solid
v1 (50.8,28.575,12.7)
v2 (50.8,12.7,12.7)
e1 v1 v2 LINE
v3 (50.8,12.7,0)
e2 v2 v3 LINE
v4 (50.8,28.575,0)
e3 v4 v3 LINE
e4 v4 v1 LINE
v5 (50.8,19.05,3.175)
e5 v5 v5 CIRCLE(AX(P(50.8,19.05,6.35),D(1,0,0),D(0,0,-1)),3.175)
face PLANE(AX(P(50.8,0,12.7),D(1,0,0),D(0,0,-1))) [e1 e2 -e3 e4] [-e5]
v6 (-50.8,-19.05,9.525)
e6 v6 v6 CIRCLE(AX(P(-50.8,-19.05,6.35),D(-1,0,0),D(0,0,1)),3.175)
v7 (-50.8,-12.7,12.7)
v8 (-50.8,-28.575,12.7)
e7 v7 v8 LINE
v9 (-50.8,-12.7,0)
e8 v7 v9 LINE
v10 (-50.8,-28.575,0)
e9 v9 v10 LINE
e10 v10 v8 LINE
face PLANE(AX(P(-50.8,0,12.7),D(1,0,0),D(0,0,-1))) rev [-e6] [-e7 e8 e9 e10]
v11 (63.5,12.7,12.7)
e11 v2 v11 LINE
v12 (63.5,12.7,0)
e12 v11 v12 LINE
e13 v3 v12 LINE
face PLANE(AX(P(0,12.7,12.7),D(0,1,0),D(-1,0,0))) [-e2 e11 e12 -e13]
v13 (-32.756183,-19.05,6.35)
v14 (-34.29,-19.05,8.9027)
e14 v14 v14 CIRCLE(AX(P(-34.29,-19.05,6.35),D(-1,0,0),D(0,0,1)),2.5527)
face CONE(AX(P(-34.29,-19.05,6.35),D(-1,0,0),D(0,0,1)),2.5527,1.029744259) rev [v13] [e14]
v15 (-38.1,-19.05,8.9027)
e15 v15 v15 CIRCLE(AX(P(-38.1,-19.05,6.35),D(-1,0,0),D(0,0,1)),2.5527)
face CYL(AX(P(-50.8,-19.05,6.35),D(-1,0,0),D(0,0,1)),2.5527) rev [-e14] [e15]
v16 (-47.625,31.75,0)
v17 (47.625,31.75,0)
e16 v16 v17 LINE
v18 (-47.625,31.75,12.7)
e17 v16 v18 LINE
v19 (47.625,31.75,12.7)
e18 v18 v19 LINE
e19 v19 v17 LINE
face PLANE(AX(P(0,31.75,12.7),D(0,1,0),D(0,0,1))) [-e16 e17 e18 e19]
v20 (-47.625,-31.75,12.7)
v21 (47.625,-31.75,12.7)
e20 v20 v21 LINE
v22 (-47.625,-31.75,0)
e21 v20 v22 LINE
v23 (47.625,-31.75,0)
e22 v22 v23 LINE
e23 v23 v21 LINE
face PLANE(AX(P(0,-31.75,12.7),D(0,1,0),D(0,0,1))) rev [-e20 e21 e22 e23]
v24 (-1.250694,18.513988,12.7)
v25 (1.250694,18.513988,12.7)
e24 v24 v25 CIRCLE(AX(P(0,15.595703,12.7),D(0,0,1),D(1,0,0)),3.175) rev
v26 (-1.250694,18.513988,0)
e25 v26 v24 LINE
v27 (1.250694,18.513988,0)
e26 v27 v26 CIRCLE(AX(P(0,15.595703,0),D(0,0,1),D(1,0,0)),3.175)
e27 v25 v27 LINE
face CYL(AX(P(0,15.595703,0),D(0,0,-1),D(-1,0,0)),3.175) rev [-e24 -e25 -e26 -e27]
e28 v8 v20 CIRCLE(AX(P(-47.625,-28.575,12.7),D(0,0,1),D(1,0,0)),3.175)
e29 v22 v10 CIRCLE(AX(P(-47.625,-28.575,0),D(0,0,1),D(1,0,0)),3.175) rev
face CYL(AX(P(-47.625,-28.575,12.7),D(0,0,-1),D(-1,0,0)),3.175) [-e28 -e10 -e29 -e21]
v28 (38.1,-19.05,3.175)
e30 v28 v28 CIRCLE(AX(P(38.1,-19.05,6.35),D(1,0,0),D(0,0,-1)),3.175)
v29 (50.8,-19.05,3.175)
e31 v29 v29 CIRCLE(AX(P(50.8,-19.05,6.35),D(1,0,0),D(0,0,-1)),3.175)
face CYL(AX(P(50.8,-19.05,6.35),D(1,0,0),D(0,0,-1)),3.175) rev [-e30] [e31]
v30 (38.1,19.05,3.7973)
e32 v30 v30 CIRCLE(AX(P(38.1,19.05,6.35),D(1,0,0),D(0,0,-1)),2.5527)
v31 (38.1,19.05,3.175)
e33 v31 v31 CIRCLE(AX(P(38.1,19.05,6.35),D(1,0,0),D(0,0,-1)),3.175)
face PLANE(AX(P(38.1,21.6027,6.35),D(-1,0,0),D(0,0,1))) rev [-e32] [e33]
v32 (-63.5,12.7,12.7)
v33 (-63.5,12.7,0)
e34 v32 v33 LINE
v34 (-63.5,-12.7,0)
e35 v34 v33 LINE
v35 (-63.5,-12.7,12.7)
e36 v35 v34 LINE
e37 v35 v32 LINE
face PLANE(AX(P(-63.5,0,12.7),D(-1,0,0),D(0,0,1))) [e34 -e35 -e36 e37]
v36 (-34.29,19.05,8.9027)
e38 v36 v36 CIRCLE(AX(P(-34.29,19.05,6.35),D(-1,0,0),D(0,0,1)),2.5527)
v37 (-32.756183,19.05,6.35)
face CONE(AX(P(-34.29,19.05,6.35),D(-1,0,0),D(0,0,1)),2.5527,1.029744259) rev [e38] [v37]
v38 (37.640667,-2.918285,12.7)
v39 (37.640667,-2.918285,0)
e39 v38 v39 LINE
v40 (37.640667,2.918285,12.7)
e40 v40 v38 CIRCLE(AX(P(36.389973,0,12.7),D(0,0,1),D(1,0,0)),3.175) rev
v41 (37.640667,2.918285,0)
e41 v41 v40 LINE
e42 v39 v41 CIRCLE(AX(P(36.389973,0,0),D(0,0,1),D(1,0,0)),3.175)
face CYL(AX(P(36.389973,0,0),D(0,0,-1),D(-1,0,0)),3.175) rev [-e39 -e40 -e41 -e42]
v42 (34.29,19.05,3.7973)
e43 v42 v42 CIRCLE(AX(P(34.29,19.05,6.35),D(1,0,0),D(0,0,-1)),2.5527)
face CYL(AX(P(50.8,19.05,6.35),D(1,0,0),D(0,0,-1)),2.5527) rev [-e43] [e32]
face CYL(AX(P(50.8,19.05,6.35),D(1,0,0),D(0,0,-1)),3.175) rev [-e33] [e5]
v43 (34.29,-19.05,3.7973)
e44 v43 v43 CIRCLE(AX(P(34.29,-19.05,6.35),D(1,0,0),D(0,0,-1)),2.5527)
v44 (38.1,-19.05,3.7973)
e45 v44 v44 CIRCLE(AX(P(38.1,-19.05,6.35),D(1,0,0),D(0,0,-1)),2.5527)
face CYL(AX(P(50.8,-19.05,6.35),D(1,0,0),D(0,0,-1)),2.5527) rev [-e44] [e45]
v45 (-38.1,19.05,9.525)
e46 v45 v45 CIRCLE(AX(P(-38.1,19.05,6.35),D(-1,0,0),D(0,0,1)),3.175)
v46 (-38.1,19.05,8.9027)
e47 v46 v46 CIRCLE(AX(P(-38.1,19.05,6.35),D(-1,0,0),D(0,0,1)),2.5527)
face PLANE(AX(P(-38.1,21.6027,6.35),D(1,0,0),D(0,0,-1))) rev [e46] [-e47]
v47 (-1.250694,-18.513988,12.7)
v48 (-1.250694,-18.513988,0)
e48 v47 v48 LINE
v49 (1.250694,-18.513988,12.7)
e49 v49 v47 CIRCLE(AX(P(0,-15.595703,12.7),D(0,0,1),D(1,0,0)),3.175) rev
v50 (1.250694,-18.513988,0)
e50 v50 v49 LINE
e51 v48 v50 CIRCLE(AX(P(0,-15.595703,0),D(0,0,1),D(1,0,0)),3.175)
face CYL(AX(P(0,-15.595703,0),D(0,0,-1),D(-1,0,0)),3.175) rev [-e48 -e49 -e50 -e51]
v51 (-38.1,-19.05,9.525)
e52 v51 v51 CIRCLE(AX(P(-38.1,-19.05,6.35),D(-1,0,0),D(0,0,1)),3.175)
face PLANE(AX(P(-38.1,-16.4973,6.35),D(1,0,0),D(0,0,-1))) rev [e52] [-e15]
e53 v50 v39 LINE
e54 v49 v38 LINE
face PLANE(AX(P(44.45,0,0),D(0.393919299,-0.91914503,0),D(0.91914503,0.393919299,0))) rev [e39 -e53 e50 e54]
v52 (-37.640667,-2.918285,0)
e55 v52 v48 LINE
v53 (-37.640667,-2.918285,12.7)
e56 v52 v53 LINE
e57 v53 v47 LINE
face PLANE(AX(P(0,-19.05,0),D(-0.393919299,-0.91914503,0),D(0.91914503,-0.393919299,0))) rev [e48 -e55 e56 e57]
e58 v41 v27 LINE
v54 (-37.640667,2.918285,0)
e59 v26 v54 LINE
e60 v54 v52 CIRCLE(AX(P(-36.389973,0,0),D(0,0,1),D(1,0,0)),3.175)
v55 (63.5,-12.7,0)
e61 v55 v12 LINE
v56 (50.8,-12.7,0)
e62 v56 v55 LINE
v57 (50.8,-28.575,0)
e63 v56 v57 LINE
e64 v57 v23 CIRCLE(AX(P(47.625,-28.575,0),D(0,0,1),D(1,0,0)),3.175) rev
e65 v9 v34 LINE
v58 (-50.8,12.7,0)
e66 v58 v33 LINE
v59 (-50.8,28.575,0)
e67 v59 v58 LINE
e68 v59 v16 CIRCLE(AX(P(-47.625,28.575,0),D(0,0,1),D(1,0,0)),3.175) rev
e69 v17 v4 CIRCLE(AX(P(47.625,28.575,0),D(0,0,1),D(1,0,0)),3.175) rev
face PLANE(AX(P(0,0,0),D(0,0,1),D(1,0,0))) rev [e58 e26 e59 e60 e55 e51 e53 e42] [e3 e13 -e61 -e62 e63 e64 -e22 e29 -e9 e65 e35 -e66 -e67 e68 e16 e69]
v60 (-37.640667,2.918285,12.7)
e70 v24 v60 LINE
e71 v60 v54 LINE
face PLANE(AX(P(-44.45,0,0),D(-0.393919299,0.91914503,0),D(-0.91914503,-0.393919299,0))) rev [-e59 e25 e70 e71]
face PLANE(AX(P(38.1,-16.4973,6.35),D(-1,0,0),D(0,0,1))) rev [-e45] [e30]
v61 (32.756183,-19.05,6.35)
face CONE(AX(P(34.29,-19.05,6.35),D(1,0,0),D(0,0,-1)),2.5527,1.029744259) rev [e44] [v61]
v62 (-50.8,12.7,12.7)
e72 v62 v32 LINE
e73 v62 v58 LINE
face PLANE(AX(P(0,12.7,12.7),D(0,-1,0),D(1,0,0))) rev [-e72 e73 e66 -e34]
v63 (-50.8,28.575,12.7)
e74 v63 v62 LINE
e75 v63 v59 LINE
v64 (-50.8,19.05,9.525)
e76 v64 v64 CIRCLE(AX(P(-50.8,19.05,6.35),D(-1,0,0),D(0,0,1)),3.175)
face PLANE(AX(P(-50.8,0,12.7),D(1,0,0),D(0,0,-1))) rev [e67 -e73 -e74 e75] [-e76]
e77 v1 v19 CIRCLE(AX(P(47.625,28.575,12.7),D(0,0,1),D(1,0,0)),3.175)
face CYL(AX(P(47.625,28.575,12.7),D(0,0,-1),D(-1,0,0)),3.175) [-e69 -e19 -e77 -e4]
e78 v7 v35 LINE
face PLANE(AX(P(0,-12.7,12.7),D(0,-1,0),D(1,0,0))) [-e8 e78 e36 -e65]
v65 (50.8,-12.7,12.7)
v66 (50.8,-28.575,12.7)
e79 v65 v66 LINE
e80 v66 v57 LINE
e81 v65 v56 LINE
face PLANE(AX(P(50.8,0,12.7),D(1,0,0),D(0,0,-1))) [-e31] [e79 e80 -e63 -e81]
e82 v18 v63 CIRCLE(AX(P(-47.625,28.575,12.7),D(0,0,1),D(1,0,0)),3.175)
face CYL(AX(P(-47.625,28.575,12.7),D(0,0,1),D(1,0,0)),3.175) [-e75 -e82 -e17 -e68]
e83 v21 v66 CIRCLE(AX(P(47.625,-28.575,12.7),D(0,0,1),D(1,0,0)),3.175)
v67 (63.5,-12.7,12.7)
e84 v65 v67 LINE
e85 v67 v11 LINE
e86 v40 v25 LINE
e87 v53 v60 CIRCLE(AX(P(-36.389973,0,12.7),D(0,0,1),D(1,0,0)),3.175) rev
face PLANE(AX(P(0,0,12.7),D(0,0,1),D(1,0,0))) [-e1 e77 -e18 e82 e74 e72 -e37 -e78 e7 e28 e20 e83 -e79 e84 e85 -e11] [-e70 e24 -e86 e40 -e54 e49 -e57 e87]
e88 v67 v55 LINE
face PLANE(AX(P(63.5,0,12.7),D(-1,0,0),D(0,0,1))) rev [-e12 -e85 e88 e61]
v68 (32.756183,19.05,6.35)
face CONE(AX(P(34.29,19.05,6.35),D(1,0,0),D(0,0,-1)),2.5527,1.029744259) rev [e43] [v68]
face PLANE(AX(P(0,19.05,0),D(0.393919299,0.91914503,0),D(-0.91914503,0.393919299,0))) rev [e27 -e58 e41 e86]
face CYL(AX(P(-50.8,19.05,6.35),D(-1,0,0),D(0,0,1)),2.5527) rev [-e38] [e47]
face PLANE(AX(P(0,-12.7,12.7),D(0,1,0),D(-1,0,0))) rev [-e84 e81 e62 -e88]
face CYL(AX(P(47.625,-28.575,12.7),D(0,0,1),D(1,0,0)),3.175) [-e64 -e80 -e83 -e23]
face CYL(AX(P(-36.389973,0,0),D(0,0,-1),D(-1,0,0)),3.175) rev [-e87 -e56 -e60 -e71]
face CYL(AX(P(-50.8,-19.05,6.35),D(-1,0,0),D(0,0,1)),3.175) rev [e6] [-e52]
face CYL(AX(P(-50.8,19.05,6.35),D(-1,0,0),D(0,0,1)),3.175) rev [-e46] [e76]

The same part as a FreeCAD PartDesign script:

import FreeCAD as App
import Part
import Sketcher
Q = App.Units.Quantity


def edges_at(feature, points):
    """Names of the edges that pass closest to the given points."""
    edges = feature.Shape.Edges
    near = lambda p: min(range(len(edges)), key=lambda i: edges[i].distToShape(Part.Vertex(*p))[0])
    return sorted({f"Edge{near(p) + 1}" for p in points})


def add_polygon(sketch, points):
    """Adds a closed chain of lines whose ends are joined by coincident constraints."""
    first, n = sketch.GeometryCount, len(points)
    for a, b in zip(points, points[1:] + points[:1]):
        sketch.addGeometry(Part.LineSegment(App.Vector(*a, 0), App.Vector(*b, 0)), False)
    for i in range(n):
        sketch.addConstraint(Sketcher.Constraint("Coincident", first + i, 2, first + (i + 1) % n, 1))

doc = App.newDocument("Part")
body = doc.addObject("PartDesign::Body", "Body")

# Sketch on XY plane
sketch1 = body.newObject("Sketcher::SketchObject", "Sketch")
sketch1.AttachmentSupport = (doc.getObject("XY_Plane"), [""])
sketch1.MapMode = "FlatFace"
add_polygon(sketch1, [(-64, 13), (-64, -13), (-51, -13), (-51, -32), (51, -32), (51, -13), (64, -13), (64, 13), (51, 13), (51, 32), (-51, 32), (-51, 13)])  # lines 0-11
sketch1.addConstraint(Sketcher.Constraint("Vertical", 0))
sketch1.addConstraint(Sketcher.Constraint("Horizontal", 1))
sketch1.addConstraint(Sketcher.Constraint("Vertical", 2))
sketch1.addConstraint(Sketcher.Constraint("Horizontal", 3))
sketch1.addConstraint(Sketcher.Constraint("Vertical", 4))
sketch1.addConstraint(Sketcher.Constraint("Horizontal", 5))
sketch1.addConstraint(Sketcher.Constraint("Vertical", 6))
sketch1.addConstraint(Sketcher.Constraint("Horizontal", 7))
sketch1.addConstraint(Sketcher.Constraint("Vertical", 8))
sketch1.addConstraint(Sketcher.Constraint("Horizontal", 9))
sketch1.addConstraint(Sketcher.Constraint("Vertical", 10))
sketch1.addConstraint(Sketcher.Constraint("Horizontal", 11))
sketch1.addConstraint(Sketcher.Constraint("Symmetric", 0, 2, 6, 2, -1, 1))
sketch1.addConstraint(Sketcher.Constraint("Symmetric", 2, 2, 8, 2, -1, 1))
sketch1.addConstraint(Sketcher.Constraint("Symmetric", 4, 2, 10, 2, -1, 1))
sketch1.addConstraint(Sketcher.Constraint("Symmetric", 1, 2, 4, 2, -2))
sketch1.addConstraint(Sketcher.Constraint("DistanceX", 3, 1, 3, 2, Q("4 in")))
sketch1.addConstraint(Sketcher.Constraint("DistanceY", 0, 2, 0, 1, Q("1 in")))
sketch1.addConstraint(Sketcher.Constraint("DistanceX", 1, 1, 1, 2, Q("0.5 in")))
sketch1.addConstraint(Sketcher.Constraint("DistanceY", 2, 2, 2, 1, Q("0.75 in")))
pad1 = body.newObject("PartDesign::Pad", "Pad")
pad1.Profile = sketch1
pad1.Length = Q("0.5 in")

# Sketch on XZ plane
sketch2 = body.newObject("Sketcher::SketchObject", "Sketch001")
sketch2.AttachmentSupport = (doc.getObject("XZ_Plane"), [""])
sketch2.MapMode = "FlatFace"
sketch2.AttachmentOffset = App.Placement(App.Vector(0, 0, -0.75 * 25.4), App.Rotation())
add_polygon(sketch2, [(32.8, 6.3), (50.8, 6.3), (50.8, 3.2), (38.1, 3.2), (38.1, 3.8), (34.3, 3.8)])  # lines 0-5
sketch2.addGeometry(Part.LineSegment(App.Vector(50.8, 6.3, 0), App.Vector(32.8, 6.3, 0)), True)  # axis
sketch2.addConstraint(Sketcher.Constraint("Horizontal", 0))
sketch2.addConstraint(Sketcher.Constraint("Vertical", 1))
sketch2.addConstraint(Sketcher.Constraint("Horizontal", 2))
sketch2.addConstraint(Sketcher.Constraint("Vertical", 3))
sketch2.addConstraint(Sketcher.Constraint("Horizontal", 4))
sketch2.addConstraint(Sketcher.Constraint("Horizontal", 6))
sketch2.addConstraint(Sketcher.Constraint("Coincident", 6, 1, 0, 2))
sketch2.addConstraint(Sketcher.Constraint("Equal", 0, 6))
sketch2.addConstraint(Sketcher.Constraint("DistanceX", 2, 2, 2, 1, Q("0.5 in")))
sketch2.addConstraint(Sketcher.Constraint("DistanceX", -1, 1, 0, 2, Q("2 in")))
sketch2.addConstraint(Sketcher.Constraint("Angle", 5, Q("121 deg")))
sketch2.addConstraint(Sketcher.Constraint("DistanceX", 4, 2, 4, 1, Q("0.15 in")))
sketch2.addConstraint(Sketcher.Constraint("DistanceY", 1, 2, 1, 1, Q("0.125 in")))
sketch2.addConstraint(Sketcher.Constraint("DistanceY", -1, 1, 0, 2, Q("0.25 in")))
sketch2.addConstraint(Sketcher.Constraint("DistanceY", 3, 1, 3, 2, Q("0.0245 in")))
groove = body.newObject("PartDesign::Groove", "Groove")
groove.Profile = sketch2
groove.ReferenceAxis = (sketch2, ["Axis0"])
groove.Angle = 360
doc.recompute()

linearpattern = body.newObject("PartDesign::LinearPattern", "LinearPattern")
linearpattern.Originals = [groove]
linearpattern.Direction = (doc.getObject("Y_Axis"), [""])
linearpattern.Mode = "offset"
linearpattern.Offset = Q("1.5 in")
linearpattern.Occurrences = 2
linearpattern.Reversed = True
body.Tip = linearpattern
doc.recompute()

mirrored = body.newObject("PartDesign::Mirrored", "Mirrored")
mirrored.Originals = [groove]
mirrored.MirrorPlane = (doc.getObject("YZ_Plane"), [""])
body.Tip = mirrored

# Sketch on XZ plane
sketch3 = body.newObject("Sketcher::SketchObject", "Sketch002")
sketch3.AttachmentSupport = (doc.getObject("XZ_Plane"), [""])
sketch3.MapMode = "FlatFace"
sketch3.AttachmentOffset = App.Placement(App.Vector(0, 0, 0.75 * 25.4), App.Rotation())
add_polygon(sketch3, [(-50.8, 6.3), (-32.8, 6.3), (-34.3, 3.8), (-38.1, 3.8), (-38.1, 3.2), (-50.8, 3.2)])  # lines 0-5
sketch3.addGeometry(Part.LineSegment(App.Vector(-32.8, 6.3, 0), App.Vector(-50.8, 6.3, 0)), True)  # axis
sketch3.addConstraint(Sketcher.Constraint("Horizontal", 0))
sketch3.addConstraint(Sketcher.Constraint("Horizontal", 2))
sketch3.addConstraint(Sketcher.Constraint("Vertical", 3))
sketch3.addConstraint(Sketcher.Constraint("Horizontal", 4))
sketch3.addConstraint(Sketcher.Constraint("Vertical", 5))
sketch3.addConstraint(Sketcher.Constraint("Horizontal", 6))
sketch3.addConstraint(Sketcher.Constraint("Coincident", 6, 1, 0, 2))
sketch3.addConstraint(Sketcher.Constraint("Vertical", 4, 2, 6, 2))
sketch3.addConstraint(Sketcher.Constraint("DistanceX", 4, 2, 4, 1, Q("0.5 in")))
sketch3.addConstraint(Sketcher.Constraint("DistanceX", 4, 2, -1, 1, Q("2 in")))
sketch3.addConstraint(Sketcher.Constraint("Angle", 1, Q("-121 deg")))
sketch3.addConstraint(Sketcher.Constraint("DistanceX", 2, 2, 2, 1, Q("0.15 in")))
sketch3.addConstraint(Sketcher.Constraint("DistanceY", 5, 1, 5, 2, Q("0.125 in")))
sketch3.addConstraint(Sketcher.Constraint("DistanceY", -1, 1, 0, 2, Q("0.25 in")))
sketch3.addConstraint(Sketcher.Constraint("DistanceY", 3, 2, 3, 1, Q("0.0245 in")))
groove2 = body.newObject("PartDesign::Groove", "Groove001")
groove2.Profile = sketch3
groove2.ReferenceAxis = (sketch3, ["Axis0"])
groove2.Angle = 360

# Sketch on XY plane
sketch4 = body.newObject("Sketcher::SketchObject", "Sketch003")
sketch4.AttachmentSupport = (doc.getObject("XY_Plane"), [""])
sketch4.MapMode = "FlatFace"
sketch4.AttachmentOffset = App.Placement(App.Vector(0, 0, 0.5 * 25.4), App.Rotation())
add_polygon(sketch4, [(0, 19), (-44, 0), (0, -19), (44, 0)])  # lines 0-3
sketch4.addConstraint(Sketcher.Constraint("Symmetric", 0, 2, 2, 2, -1, 1))
sketch4.addConstraint(Sketcher.Constraint("Symmetric", 1, 2, 3, 2, -1, 1))
sketch4.addConstraint(Sketcher.Constraint("PointOnObject", 0, 2, -1))
sketch4.addConstraint(Sketcher.Constraint("PointOnObject", 1, 2, -2))
sketch4.addConstraint(Sketcher.Constraint("DistanceX", 0, 2, 2, 2, Q("3.5 in")))
sketch4.addConstraint(Sketcher.Constraint("DistanceY", 1, 2, 3, 2, Q("1.5 in")))
pocket1 = body.newObject("PartDesign::Pocket", "Pocket")
pocket1.Profile = sketch4
pocket1.Type = "ThroughAll"
doc.recompute()

fillet = body.newObject("PartDesign::Fillet", "Fillet")
fillet.Base = (pocket1, edges_at(pocket1, [
    (0, 19.05, 6.35),
    (44.45, 0, 6.35),
    (0, -19.05, 6.35),
    (-44.45, 0, 6.35),
]))
fillet.Radius = Q("0.125 in")
doc.recompute()

fillet2 = body.newObject("PartDesign::Fillet", "Fillet001")
fillet2.Base = (fillet, edges_at(fillet, [
    (-50.8, 31.75, 6.35),
    (50.8, 31.75, 6.35),
    (50.8, -31.75, 6.35),
    (-50.8, -31.75, 6.35),
]))
fillet2.Radius = Q("0.125 in")

doc.recompute()
